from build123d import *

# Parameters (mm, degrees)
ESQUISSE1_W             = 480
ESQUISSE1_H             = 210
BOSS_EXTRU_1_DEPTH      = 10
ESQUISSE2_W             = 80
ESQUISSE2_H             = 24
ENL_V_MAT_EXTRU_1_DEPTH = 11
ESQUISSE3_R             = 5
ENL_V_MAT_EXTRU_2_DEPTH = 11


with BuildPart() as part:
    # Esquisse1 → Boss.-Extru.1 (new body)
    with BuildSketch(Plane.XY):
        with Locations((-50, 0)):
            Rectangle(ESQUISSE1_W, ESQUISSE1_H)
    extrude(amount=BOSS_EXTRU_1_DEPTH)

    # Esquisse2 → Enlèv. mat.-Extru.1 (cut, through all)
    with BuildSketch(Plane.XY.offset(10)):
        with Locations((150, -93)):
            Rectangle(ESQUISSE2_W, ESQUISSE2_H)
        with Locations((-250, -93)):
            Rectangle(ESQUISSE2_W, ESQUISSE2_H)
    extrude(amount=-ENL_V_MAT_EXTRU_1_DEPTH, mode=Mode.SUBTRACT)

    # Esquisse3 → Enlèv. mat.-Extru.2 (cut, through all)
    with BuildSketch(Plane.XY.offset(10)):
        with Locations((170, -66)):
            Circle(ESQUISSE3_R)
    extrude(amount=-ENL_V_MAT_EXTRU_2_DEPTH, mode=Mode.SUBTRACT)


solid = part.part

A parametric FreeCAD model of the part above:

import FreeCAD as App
import Part
import Sketcher


def add_polygon(sketch, points):
    """Adds a closed chain of lines whose ends are joined by coincident constraints."""
    first, n = sketch.GeometryCount, len(points)
    for a, b in zip(points, points[1:] + points[:1]):
        sketch.addGeometry(Part.LineSegment(App.Vector(*a, 0), App.Vector(*b, 0)), False)
    for i in range(n):
        sketch.addConstraint(Sketcher.Constraint("Coincident", first + i, 2, first + (i + 1) % n, 1))

doc = App.newDocument("Part")
body = doc.addObject("PartDesign::Body", "Body")

# Sketch on XY plane
sketch1 = doc.addObject("Sketcher::SketchObject", "Sketch")
body.addObject(sketch1)
sketch1.AttachmentSupport = (doc.XY_Plane, [""])
sketch1.MapMode = "FlatFace"
add_polygon(sketch1, [(-290, 105), (-290, -105), (190, -105), (190, 105)])  # lines 0-3
sketch1.addConstraint([
    Sketcher.Constraint("Vertical", 0),
    Sketcher.Constraint("Horizontal", 1),
    Sketcher.Constraint("Vertical", 2),
    Sketcher.Constraint("Horizontal", 3),
    Sketcher.Constraint("DistanceX", 1, 1, 1, 2, 480.0),
    Sketcher.Constraint("DistanceY", 0, 2, 0, 1, 210.0),
    Sketcher.Constraint("DistanceX", 0, 2, -1, 1, 290.0),
    Sketcher.Constraint("DistanceY", 0, 2, -1, 1, 105.0),
])
pad1 = doc.addObject("PartDesign::Pad", "Pad")
body.addObject(pad1)
pad1.Profile = sketch1
pad1.Length = 10

# Sketch on XY plane
sketch2 = doc.addObject("Sketcher::SketchObject", "Sketch001")
body.addObject(sketch2)
sketch2.AttachmentSupport = (doc.XY_Plane, [""])
sketch2.MapMode = "FlatFace"
sketch2.AttachmentOffset = App.Placement(App.Vector(0, 0, 10), App.Rotation())
add_polygon(sketch2, [(110, -81), (110, -105), (190, -105), (190, -81)])  # lines 0-3
add_polygon(sketch2, [(-290, -81), (-290, -105), (-210, -105), (-210, -81)])  # lines 4-7
sketch2.addConstraint([
    Sketcher.Constraint("Vertical", 0),
    Sketcher.Constraint("Horizontal", 1),
    Sketcher.Constraint("Vertical", 2),
    Sketcher.Constraint("Horizontal", 3),
    Sketcher.Constraint("Vertical", 4),
    Sketcher.Constraint("Horizontal", 5),
    Sketcher.Constraint("Vertical", 6),
    Sketcher.Constraint("Horizontal", 7),
    Sketcher.Constraint("Horizontal", 1, 2, 4, 2),
    Sketcher.Constraint("Horizontal", 3, 2, 6, 2),
    Sketcher.Constraint("Equal", 3, 5),
    Sketcher.Constraint("DistanceX", 1, 1, 1, 2, 80.0),
    Sketcher.Constraint("DistanceY", 0, 2, 0, 1, 24.0),
    Sketcher.Constraint("DistanceX", -1, 1, 0, 2, 110.0),
    Sketcher.Constraint("DistanceY", 0, 2, -1, 1, 105.0),
    Sketcher.Constraint("DistanceX", 4, 2, -1, 1, 290.0),
])
pocket1 = doc.addObject("PartDesign::Pocket", "Pocket")
body.addObject(pocket1)
pocket1.Profile = sketch2
pocket1.Type = "ThroughAll"

# Sketch on XY plane
sketch3 = doc.addObject("Sketcher::SketchObject", "Sketch002")
body.addObject(sketch3)
sketch3.AttachmentSupport = (doc.XY_Plane, [""])
sketch3.MapMode = "FlatFace"
sketch3.AttachmentOffset = App.Placement(App.Vector(0, 0, 10), App.Rotation())
sketch3.addGeometry(Part.Circle(App.Vector(170, -66, 0), App.Vector(0, 0, 1), 5), False)
sketch3.addConstraint([
    Sketcher.Constraint("Diameter", 0, 10.0),
    Sketcher.Constraint("DistanceX", -1, 1, 0, 3, 170.0),
    Sketcher.Constraint("DistanceY", 0, 3, -1, 1, 66.0),
])
pocket2 = doc.addObject("PartDesign::Pocket", "Pocket001")
body.addObject(pocket2)
pocket2.Profile = sketch3
pocket2.Type = "ThroughAll"

doc.recompute()
